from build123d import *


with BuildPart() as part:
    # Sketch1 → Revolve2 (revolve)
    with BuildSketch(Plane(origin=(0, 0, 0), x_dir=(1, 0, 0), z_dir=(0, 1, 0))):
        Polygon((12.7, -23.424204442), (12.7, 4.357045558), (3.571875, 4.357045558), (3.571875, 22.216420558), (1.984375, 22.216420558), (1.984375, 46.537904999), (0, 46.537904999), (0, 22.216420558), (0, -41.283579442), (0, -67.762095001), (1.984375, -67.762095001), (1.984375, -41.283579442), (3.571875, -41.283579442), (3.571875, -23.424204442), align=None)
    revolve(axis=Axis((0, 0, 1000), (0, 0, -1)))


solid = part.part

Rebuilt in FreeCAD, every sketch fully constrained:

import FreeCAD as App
import Part
import Sketcher
from FreeCAD import Vector
Q = App.Units.Quantity


def add_polygon(sketch, points):
    """Adds a closed chain of lines whose ends are joined by coincident constraints."""
    first, n = sketch.GeometryCount, len(points)
    for a, b in zip(points, points[1:] + points[:1]):
        sketch.addGeometry(Part.LineSegment(App.Vector(*a, 0), App.Vector(*b, 0)), False)
    for i in range(n):
        sketch.addConstraint(Sketcher.Constraint("Coincident", first + i, 2, first + (i + 1) % n, 1))

doc = App.newDocument("Part")
body = doc.addObject("PartDesign::Body", "Body")

# Sketch on XZ plane
sketch1 = body.newObject("Sketcher::SketchObject", "Sketch")
sketch1.AttachmentSupport = (doc.getObject("XZ_Plane"), [""])
sketch1.MapMode = "FlatFace"
add_polygon(sketch1, [(12.7, 23.4), (12.7, -4.4), (3.6, -4.4), (3.6, -22.2), (2, -22.2), (2, -46.5), (0, -46.5), (0, 67.8), (2, 67.8), (2, 41.3), (3.6, 41.3), (3.6, 23.4)])  # lines 0-11
sketch1.addConstraint([
    Sketcher.Constraint("Vertical", 0),
    Sketcher.Constraint("Horizontal", 1),
    Sketcher.Constraint("Vertical", 2),
    Sketcher.Constraint("Horizontal", 3),
    Sketcher.Constraint("Vertical", 4),
    Sketcher.Constraint("Horizontal", 5),
    Sketcher.Constraint("Vertical", 6),
    Sketcher.Constraint("Horizontal", 7),
    Sketcher.Constraint("Vertical", 8),
    Sketcher.Constraint("Horizontal", 9),
    Sketcher.Constraint("Vertical", 10),
    Sketcher.Constraint("Horizontal", 11),
    Sketcher.Constraint("PointOnObject", 5, 2, -2),
    Sketcher.Constraint("Vertical", 4, 2, 7, 2),
    Sketcher.Constraint("Vertical", 2, 2, 9, 2),
    Sketcher.Constraint("Equal", 2, 10),
    Sketcher.Constraint("DistanceY", 6, 1, 6, 2, Q("4.5 in")),
    Sketcher.Constraint("DistanceX", -1, 1, 0, 2, Q("0.5 in")),
    Sketcher.Constraint("DistanceY", 3, 2, 8, 2, Q("2.5 in")),
    Sketcher.Constraint("DistanceX", 1, 2, 1, 1, Q("0.359375 in")),
    Sketcher.Constraint("DistanceX", 3, 2, 3, 1, Q("0.0625 in")),
    Sketcher.Constraint("DistanceY", 0, 2, 0, 1, Q("1.09375 in")),
    Sketcher.Constraint("DistanceY", 4, 2, 4, 1, 24.321484),
    Sketcher.Constraint("DistanceY", 2, 2, -1, 1, 22.216421),
])
revolution = body.newObject("PartDesign::Revolution", "Revolution")
revolution.Profile = sketch1
revolution.ReferenceAxis = (sketch1, ["V_Axis"])
revolution.Angle = 360

doc.recompute()
